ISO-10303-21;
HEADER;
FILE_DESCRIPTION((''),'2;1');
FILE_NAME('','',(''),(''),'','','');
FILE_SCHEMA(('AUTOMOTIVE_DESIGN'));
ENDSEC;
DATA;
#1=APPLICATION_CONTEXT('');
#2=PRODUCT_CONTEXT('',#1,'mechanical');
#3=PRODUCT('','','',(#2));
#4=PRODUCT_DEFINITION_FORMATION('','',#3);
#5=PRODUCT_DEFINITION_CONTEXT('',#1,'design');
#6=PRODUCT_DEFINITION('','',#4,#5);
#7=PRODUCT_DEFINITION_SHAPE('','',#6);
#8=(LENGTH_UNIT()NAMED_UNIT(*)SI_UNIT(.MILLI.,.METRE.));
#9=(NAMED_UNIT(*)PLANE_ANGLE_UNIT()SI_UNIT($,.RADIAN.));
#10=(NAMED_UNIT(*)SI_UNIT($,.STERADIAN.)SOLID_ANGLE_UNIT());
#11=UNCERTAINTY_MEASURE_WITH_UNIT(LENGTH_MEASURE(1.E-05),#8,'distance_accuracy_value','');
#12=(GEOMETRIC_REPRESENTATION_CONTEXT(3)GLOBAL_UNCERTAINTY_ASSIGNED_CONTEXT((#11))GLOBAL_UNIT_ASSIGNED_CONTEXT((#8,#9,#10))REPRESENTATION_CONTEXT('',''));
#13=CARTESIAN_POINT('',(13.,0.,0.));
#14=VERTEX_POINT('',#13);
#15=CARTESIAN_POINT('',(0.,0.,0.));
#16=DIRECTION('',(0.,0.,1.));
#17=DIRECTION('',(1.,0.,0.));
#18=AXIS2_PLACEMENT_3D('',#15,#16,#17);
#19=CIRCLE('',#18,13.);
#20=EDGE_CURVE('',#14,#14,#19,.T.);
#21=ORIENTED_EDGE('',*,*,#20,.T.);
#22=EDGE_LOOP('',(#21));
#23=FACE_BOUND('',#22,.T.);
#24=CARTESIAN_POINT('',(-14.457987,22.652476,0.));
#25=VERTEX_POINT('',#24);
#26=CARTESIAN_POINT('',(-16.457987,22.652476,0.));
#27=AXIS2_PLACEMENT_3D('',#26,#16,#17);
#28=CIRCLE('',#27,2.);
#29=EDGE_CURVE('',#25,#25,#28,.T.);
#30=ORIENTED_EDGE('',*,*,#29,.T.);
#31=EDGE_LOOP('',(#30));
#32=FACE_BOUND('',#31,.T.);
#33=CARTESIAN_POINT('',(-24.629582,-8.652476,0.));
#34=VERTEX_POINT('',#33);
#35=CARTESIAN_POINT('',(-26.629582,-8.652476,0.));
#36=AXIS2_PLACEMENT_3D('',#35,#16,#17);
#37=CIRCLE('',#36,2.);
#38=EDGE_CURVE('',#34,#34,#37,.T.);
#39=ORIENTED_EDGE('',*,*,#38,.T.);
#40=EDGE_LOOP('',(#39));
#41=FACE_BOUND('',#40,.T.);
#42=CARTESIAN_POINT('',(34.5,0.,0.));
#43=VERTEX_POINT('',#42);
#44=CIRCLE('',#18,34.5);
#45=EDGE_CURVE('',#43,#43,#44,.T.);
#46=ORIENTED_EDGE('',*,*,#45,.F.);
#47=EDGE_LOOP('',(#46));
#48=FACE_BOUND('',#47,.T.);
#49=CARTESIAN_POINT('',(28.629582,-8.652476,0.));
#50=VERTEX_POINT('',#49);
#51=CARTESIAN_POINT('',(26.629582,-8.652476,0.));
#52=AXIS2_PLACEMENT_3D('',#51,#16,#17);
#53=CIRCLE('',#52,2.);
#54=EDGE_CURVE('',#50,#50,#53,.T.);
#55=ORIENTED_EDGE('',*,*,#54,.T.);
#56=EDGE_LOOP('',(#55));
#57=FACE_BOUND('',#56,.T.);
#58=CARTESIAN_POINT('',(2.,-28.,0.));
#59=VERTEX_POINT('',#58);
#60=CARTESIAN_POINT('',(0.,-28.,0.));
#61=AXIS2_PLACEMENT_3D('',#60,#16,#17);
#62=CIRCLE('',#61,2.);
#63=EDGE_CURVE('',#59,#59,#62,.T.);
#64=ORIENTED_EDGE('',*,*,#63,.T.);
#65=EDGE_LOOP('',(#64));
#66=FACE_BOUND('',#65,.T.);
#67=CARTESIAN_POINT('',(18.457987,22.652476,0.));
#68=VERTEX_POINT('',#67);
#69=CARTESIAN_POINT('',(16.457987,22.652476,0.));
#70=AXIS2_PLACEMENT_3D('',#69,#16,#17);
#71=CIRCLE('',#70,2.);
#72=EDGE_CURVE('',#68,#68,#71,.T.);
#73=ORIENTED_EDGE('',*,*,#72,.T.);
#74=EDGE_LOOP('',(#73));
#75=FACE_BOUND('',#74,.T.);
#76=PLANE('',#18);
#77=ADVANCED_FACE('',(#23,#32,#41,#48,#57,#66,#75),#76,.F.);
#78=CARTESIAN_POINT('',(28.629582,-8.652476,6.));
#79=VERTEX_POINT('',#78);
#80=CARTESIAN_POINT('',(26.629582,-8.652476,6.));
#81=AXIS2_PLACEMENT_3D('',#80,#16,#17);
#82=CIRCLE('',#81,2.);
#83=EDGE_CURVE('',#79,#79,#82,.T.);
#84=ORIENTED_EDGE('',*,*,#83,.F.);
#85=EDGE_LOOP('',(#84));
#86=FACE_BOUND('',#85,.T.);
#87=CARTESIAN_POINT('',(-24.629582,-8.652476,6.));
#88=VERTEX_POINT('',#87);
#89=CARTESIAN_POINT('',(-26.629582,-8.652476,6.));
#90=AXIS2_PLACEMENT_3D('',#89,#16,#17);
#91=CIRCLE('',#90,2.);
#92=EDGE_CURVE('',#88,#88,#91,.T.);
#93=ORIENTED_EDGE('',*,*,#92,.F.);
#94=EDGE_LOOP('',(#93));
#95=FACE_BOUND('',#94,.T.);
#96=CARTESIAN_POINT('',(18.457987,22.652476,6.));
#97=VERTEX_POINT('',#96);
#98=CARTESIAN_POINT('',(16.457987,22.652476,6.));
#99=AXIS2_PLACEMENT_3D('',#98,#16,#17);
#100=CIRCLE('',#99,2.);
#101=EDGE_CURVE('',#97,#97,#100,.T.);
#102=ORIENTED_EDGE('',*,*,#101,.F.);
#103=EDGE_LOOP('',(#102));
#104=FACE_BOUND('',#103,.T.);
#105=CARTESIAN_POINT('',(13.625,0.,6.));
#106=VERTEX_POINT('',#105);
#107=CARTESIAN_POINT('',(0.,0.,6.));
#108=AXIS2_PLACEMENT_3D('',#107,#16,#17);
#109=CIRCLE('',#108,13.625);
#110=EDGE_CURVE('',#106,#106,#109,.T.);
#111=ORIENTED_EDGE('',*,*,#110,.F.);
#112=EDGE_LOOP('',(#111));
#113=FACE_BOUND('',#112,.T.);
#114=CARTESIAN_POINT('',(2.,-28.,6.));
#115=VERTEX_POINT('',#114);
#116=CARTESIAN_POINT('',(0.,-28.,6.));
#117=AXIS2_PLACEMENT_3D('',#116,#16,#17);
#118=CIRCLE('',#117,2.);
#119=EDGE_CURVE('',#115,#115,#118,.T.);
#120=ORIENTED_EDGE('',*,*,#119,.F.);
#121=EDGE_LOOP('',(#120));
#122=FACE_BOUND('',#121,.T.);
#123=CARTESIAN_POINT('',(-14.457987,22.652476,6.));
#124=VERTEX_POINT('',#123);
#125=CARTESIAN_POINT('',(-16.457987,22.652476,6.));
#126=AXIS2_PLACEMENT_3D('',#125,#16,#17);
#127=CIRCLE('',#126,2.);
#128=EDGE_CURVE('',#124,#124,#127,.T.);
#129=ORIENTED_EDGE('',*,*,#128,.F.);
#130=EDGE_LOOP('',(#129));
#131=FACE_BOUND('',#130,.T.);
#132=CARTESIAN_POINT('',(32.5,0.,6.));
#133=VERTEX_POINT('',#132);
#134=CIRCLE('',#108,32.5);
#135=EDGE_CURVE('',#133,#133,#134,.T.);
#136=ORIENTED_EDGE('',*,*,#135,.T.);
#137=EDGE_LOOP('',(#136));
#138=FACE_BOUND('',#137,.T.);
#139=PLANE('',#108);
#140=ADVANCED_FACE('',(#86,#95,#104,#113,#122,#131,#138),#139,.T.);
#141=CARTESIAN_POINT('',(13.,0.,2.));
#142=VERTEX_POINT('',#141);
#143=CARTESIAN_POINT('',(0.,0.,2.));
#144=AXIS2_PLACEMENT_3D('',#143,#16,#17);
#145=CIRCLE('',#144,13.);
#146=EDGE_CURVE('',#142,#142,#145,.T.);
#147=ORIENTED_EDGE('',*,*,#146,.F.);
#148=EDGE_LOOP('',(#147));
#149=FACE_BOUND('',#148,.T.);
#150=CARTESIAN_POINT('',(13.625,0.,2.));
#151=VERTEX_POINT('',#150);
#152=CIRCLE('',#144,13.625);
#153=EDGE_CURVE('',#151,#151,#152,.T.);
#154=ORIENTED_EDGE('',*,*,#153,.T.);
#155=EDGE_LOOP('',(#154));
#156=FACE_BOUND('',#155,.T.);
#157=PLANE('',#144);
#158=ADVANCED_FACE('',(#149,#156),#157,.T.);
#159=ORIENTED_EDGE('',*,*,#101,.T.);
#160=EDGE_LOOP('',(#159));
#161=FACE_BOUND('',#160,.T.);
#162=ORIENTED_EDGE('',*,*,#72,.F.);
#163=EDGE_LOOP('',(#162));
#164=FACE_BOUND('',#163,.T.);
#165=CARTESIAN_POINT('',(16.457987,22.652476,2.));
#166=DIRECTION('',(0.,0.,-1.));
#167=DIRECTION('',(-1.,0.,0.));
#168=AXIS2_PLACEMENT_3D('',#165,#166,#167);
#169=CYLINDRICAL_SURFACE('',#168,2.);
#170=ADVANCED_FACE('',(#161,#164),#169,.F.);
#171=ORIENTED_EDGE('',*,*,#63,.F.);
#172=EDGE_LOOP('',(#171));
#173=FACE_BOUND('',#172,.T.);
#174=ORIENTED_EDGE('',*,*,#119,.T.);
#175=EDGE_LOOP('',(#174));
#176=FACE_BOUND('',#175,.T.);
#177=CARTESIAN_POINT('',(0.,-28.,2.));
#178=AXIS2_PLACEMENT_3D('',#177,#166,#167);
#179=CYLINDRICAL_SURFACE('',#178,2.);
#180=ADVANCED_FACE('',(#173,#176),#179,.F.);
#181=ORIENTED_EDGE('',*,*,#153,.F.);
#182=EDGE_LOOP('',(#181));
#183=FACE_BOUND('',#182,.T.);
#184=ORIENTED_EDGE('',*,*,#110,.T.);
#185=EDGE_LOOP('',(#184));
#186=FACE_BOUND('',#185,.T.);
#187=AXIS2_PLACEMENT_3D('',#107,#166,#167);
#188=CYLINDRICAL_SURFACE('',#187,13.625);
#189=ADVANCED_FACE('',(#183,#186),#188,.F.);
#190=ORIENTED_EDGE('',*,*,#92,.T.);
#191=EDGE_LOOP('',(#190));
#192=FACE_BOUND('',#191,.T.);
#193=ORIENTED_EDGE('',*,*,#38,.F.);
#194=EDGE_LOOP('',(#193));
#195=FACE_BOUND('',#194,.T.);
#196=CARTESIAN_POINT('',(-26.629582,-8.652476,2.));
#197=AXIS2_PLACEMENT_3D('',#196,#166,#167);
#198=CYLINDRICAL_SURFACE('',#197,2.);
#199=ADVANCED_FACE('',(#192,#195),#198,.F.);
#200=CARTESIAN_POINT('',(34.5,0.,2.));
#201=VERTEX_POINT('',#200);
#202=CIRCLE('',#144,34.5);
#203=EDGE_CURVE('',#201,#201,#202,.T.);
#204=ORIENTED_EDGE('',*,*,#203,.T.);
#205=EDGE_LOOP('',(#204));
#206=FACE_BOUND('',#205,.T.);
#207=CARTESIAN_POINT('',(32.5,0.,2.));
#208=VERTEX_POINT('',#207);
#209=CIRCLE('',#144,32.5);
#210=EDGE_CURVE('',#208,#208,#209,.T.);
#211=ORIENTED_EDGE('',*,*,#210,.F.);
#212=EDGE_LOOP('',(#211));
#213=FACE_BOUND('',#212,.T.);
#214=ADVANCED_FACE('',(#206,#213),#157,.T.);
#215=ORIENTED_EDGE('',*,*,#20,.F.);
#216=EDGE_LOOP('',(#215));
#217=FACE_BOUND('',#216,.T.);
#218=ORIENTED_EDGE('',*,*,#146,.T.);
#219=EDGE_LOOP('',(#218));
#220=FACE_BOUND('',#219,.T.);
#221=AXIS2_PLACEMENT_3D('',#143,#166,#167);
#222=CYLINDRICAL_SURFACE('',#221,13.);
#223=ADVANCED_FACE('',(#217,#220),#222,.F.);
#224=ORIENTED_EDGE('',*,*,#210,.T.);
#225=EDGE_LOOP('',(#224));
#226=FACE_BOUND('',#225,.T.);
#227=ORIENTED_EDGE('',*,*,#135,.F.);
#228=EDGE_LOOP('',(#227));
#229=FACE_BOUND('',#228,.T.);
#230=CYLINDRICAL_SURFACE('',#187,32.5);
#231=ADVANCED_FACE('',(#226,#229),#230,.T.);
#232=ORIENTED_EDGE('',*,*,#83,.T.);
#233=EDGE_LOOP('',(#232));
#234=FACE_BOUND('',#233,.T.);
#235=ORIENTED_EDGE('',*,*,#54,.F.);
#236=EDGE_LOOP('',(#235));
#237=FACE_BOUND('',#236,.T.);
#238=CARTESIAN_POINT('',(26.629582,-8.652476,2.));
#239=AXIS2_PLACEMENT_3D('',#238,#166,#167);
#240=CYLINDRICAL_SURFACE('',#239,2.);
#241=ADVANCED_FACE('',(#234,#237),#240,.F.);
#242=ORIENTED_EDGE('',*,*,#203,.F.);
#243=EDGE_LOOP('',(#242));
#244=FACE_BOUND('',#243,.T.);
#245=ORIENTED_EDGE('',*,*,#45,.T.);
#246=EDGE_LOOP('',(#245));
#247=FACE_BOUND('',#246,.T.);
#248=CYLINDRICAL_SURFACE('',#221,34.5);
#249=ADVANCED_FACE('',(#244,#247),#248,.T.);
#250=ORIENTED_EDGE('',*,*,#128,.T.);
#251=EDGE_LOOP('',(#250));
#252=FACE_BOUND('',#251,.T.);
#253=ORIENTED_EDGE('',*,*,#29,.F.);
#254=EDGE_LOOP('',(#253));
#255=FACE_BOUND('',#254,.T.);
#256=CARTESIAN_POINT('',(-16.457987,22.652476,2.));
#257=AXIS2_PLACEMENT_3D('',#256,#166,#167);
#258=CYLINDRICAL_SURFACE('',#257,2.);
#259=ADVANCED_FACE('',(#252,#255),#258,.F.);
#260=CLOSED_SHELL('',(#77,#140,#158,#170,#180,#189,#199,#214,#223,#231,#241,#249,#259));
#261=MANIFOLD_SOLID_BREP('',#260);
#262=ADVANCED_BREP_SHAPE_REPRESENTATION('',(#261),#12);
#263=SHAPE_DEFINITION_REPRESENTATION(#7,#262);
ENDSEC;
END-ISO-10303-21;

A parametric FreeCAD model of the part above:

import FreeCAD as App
import Part
import Sketcher
Q = App.Units.Quantity

doc = App.newDocument("Part")
params = doc.addObject("Spreadsheet::Sheet", "Params")
for row, (alias, value) in enumerate([
    ("sketch1_diameter", "69 mm"),
    ("sketch1_diameter2", "4 mm"),
    ("sketch1_diameter3", "26 mm"),
    ("pad1_length", "2 mm"),
    ("sketch2_diameter", "65 mm"),
    ("sketch2_diameter2", "4 mm"),
    ("sketch2_diameter3", "27.25 mm"),
    ("pad2_length", "4 mm"),
], start=1):
    params.set(f"A{row}", alias)
    params.set(f"B{row}", "=" + value)
    params.setAlias(f"B{row}", alias)

body = doc.addObject("PartDesign::Body", "Body")

sketch1 = body.newObject("Sketcher::SketchObject", "Sketch")
sketch1.AttachmentSupport = (doc.getObject("XY_Plane"), [""])
sketch1.MapMode = "FlatFace"
sketch1.addGeometry([
    Part.Circle(App.Vector(0, 0, 0), App.Vector(0, 0, 1), 34.5),
    Part.Circle(App.Vector(0, -28, 0), App.Vector(0, 0, 1), 2),
    Part.Circle(App.Vector(-26.629582, -8.652476, 0), App.Vector(0, 0, 1), 2),
    Part.Circle(App.Vector(26.629582, -8.652476, 0), App.Vector(0, 0, 1), 2),
    Part.Circle(App.Vector(0, 0, 0), App.Vector(0, 0, 1), 13),
    Part.Circle(App.Vector(-16.457987, 22.652476, 0), App.Vector(0, 0, 1), 2),
    Part.Circle(App.Vector(16.457987, 22.652476, 0), App.Vector(0, 0, 1), 2),
], False)
sketch1.addConstraint([
    Sketcher.Constraint("Coincident", 0, 3, -1, 1),
    Sketcher.Constraint("Coincident", 4, 3, -1, 1),
    Sketcher.Constraint("Equal", 1, 2),
    Sketcher.Constraint("Equal", 2, 3),
    Sketcher.Constraint("Equal", 3, 5),
    Sketcher.Constraint("Equal", 5, 6),
    Sketcher.Constraint("Symmetric", 2, 3, 3, 3, -2),
    Sketcher.Constraint("Symmetric", 5, 3, 6, 3, -2),
    Sketcher.Constraint("PointOnObject", 1, 3, -2),
    Sketcher.Constraint("Diameter", 0, Q("69 mm")),
    Sketcher.Constraint("Diameter", 1, Q("4 mm")),
    Sketcher.Constraint("Diameter", 4, Q("26 mm")),
    Sketcher.Constraint("DistanceY", 1, 3, -1, 1, Q("28 mm")),
    Sketcher.Constraint("DistanceY", 2, 3, 5, 3, Q("31.304952 mm")),
    Sketcher.Constraint("DistanceX", 5, 3, 3, 3, Q("43.08757 mm")),
    Sketcher.Constraint("DistanceX", 2, 3, -1, 1, Q("26.629582 mm")),
    Sketcher.Constraint("DistanceY", 2, 3, -1, 1, Q("8.652476 mm")),
])
sketch1.setExpression("Constraints[9]", "Params.sketch1_diameter")
sketch1.setExpression("Constraints[10]", "Params.sketch1_diameter2")
sketch1.setExpression("Constraints[11]", "Params.sketch1_diameter3")
pad1 = body.newObject("PartDesign::Pad", "Pad")
pad1.Profile = sketch1
pad1.setExpression("Length", "Params.pad1_length")

sketch2 = body.newObject("Sketcher::SketchObject", "Sketch001")
sketch2.AttachmentSupport = (doc.getObject("XY_Plane"), [""])
sketch2.MapMode = "FlatFace"
sketch2.AttachmentOffset = App.Placement(App.Vector(0, 0, 2), App.Rotation())
sketch2.addGeometry([
    Part.Circle(App.Vector(0, 0, 0), App.Vector(0, 0, 1), 32.5),
    Part.Circle(App.Vector(0, -28, 0), App.Vector(0, 0, 1), 2),
    Part.Circle(App.Vector(-26.629582, -8.652476, 0), App.Vector(0, 0, 1), 2),
    Part.Circle(App.Vector(26.629582, -8.652476, 0), App.Vector(0, 0, 1), 2),
    Part.Circle(App.Vector(0, 0, 0), App.Vector(0, 0, 1), 13.625),
    Part.Circle(App.Vector(-16.457987, 22.652476, 0), App.Vector(0, 0, 1), 2),
    Part.Circle(App.Vector(16.457987, 22.652476, 0), App.Vector(0, 0, 1), 2),
], False)
sketch2.addConstraint([
    Sketcher.Constraint("Coincident", 0, 3, -1, 1),
    Sketcher.Constraint("Coincident", 4, 3, -1, 1),
    Sketcher.Constraint("Equal", 1, 2),
    Sketcher.Constraint("Equal", 2, 3),
    Sketcher.Constraint("Equal", 3, 5),
    Sketcher.Constraint("Equal", 5, 6),
    Sketcher.Constraint("Symmetric", 2, 3, 3, 3, -2),
    Sketcher.Constraint("Symmetric", 5, 3, 6, 3, -2),
    Sketcher.Constraint("PointOnObject", 1, 3, -2),
    Sketcher.Constraint("Diameter", 0, Q("65 mm")),
    Sketcher.Constraint("Diameter", 1, Q("4 mm")),
    Sketcher.Constraint("Diameter", 4, Q("27.25 mm")),
    Sketcher.Constraint("DistanceY", 1, 3, -1, 1, Q("28 mm")),
    Sketcher.Constraint("DistanceY", 2, 3, 5, 3, Q("31.304952 mm")),
    Sketcher.Constraint("DistanceX", 5, 3, 3, 3, Q("43.08757 mm")),
    Sketcher.Constraint("DistanceX", 2, 3, -1, 1, Q("26.629582 mm")),
    Sketcher.Constraint("DistanceY", 2, 3, -1, 1, Q("8.652476 mm")),
])
sketch2.setExpression("Constraints[9]", "Params.sketch2_diameter")
sketch2.setExpression("Constraints[10]", "Params.sketch2_diameter2")
sketch2.setExpression("Constraints[11]", "Params.sketch2_diameter3")
pad2 = body.newObject("PartDesign::Pad", "Pad001")
pad2.Profile = sketch2
pad2.setExpression("Length", "Params.pad2_length")

doc.recompute()
